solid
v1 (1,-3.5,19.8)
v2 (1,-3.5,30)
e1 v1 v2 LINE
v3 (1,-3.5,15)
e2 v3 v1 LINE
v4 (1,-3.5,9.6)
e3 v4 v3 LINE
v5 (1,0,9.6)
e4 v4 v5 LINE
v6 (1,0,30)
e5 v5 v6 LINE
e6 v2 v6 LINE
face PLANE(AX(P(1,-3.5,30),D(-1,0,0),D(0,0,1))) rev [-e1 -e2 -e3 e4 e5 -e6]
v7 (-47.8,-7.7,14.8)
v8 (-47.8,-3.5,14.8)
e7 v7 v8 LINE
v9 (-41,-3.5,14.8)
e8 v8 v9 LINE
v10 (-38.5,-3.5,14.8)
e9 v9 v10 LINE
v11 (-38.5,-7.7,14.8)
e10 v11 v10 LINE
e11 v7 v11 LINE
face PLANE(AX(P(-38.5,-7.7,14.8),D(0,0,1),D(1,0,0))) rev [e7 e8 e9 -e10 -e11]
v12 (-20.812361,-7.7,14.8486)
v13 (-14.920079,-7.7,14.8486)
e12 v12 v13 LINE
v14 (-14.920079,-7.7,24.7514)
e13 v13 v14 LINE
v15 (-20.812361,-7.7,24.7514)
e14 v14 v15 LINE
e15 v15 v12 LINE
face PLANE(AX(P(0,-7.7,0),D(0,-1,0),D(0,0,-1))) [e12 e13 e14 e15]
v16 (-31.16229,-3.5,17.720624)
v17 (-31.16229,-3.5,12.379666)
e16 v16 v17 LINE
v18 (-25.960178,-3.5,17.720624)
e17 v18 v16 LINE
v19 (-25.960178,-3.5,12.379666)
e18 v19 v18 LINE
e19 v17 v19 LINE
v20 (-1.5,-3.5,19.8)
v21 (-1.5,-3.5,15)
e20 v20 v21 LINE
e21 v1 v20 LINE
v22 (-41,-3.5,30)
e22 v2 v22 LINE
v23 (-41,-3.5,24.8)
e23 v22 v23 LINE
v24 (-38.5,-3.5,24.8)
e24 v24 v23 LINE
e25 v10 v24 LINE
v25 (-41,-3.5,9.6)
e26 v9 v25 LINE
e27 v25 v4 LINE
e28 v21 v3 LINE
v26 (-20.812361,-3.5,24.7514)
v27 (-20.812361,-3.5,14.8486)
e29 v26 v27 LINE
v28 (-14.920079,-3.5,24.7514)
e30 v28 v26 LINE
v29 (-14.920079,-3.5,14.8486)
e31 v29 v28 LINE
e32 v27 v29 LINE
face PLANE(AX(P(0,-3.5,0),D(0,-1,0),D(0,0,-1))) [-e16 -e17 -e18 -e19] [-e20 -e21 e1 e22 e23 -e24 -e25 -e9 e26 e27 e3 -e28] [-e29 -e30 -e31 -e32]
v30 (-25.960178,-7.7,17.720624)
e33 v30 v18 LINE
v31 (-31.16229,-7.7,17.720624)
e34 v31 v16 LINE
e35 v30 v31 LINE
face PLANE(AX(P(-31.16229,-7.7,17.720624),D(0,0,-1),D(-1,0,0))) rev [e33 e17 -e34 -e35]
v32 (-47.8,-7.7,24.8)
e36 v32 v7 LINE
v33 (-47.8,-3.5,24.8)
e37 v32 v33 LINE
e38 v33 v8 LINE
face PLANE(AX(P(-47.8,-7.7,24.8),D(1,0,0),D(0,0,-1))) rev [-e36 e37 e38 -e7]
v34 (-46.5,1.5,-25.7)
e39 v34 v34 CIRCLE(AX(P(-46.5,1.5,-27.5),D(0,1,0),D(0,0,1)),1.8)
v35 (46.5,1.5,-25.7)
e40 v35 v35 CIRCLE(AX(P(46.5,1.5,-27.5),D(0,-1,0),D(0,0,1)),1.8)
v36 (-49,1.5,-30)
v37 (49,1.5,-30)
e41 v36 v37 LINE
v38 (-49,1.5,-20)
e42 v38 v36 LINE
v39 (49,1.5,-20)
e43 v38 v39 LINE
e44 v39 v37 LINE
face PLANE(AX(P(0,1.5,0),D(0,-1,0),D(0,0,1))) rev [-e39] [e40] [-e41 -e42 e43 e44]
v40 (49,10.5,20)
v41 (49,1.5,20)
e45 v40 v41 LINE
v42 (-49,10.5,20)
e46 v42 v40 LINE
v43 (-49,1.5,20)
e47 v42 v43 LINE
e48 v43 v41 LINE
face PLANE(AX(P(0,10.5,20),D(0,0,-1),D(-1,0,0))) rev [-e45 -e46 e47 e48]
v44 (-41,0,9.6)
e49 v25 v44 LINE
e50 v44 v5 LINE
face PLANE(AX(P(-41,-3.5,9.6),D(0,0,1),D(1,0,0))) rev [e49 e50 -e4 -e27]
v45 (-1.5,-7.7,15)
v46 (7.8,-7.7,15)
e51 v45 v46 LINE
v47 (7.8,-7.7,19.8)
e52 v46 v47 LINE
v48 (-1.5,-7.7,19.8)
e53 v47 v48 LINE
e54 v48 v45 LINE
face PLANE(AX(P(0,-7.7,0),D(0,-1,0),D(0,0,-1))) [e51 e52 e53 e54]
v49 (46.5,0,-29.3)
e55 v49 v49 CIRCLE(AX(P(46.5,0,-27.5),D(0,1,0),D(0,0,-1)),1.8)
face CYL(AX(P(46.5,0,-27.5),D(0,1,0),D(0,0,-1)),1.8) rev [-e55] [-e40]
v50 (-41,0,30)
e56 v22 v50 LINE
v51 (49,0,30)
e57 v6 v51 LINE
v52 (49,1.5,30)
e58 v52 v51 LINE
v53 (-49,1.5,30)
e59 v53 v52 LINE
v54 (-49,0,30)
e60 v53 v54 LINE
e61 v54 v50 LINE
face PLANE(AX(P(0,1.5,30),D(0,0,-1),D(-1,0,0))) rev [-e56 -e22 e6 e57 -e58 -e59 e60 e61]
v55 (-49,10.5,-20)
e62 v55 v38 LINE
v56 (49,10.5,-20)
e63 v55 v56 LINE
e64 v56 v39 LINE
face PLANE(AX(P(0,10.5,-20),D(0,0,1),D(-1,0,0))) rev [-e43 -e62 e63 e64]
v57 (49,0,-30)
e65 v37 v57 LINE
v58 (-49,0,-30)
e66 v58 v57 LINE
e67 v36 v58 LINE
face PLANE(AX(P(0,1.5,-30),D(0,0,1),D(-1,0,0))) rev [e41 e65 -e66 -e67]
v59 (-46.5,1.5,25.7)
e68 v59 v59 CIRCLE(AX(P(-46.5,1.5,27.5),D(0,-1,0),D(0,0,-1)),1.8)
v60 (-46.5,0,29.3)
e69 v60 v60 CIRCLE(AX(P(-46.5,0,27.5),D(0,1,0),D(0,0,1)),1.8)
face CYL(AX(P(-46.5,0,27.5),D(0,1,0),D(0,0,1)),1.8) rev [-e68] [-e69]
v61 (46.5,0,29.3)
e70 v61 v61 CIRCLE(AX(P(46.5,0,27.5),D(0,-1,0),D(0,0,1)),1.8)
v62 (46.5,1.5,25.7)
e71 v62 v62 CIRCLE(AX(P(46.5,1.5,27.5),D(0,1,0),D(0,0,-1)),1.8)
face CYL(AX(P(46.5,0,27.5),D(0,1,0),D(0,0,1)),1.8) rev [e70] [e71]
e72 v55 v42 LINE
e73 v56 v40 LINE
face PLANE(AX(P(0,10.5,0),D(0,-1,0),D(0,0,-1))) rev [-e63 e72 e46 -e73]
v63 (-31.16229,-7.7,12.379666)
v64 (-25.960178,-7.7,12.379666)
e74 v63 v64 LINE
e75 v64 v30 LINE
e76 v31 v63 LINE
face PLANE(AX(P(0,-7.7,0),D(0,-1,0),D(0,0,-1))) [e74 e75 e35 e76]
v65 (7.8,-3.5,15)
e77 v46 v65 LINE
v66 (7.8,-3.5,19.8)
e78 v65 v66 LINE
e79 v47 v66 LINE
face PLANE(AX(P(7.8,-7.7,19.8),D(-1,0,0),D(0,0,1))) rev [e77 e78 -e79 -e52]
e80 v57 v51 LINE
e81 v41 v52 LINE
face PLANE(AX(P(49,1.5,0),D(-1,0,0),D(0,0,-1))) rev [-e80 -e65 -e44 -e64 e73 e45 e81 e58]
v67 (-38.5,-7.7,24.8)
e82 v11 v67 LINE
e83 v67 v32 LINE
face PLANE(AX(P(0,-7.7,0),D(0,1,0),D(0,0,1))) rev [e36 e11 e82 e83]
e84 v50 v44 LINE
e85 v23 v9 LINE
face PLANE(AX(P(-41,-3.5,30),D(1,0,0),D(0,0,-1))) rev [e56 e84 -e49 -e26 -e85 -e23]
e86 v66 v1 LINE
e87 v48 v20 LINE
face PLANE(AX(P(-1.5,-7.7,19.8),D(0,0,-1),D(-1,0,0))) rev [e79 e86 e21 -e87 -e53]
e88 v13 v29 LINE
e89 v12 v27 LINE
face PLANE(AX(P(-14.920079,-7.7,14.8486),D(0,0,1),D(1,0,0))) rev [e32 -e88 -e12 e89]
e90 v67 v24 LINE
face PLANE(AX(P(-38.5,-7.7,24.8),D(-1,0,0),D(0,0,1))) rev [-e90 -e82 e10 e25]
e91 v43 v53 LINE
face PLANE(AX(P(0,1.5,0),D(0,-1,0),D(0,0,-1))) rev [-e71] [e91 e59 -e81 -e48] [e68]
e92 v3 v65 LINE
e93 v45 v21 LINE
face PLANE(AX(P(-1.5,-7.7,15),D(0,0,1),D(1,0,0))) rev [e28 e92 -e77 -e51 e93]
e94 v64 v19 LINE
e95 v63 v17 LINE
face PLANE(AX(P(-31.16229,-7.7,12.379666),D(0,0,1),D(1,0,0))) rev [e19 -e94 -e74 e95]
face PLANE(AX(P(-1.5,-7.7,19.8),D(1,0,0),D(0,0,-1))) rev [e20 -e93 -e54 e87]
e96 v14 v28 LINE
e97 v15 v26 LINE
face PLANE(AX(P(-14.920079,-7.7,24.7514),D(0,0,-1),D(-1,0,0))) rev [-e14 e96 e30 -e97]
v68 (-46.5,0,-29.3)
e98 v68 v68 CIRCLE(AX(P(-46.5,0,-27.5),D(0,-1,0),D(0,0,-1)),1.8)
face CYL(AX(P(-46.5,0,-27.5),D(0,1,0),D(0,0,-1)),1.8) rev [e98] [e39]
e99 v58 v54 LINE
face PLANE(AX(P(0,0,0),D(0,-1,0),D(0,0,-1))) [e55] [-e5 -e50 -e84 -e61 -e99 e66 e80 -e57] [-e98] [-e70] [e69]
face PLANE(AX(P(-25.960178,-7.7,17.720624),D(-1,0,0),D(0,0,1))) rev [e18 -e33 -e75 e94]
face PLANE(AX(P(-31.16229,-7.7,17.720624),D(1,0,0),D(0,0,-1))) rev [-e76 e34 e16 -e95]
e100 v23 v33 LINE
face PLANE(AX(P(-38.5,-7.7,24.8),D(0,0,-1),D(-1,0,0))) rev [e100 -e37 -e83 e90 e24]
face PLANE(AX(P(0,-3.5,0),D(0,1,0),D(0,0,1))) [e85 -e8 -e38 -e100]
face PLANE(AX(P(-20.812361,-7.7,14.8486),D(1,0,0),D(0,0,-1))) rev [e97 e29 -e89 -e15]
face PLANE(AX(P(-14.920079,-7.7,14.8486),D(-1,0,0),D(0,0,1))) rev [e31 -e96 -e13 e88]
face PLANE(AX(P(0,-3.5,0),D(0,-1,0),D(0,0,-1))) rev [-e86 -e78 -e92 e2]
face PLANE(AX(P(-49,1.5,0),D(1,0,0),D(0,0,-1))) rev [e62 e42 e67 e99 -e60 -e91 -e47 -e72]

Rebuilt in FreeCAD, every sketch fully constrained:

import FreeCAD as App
import Part
import Sketcher

V = App.Vector
Q = App.Units.Quantity

doc = App.newDocument("Part")
body = doc.addObject("PartDesign::Body", "Body")

sketch1 = body.newObject("Sketcher::SketchObject", "Sketch")
sketch1.AttachmentSupport = (doc.getObject("XZ_Plane"), [""])
sketch1.MapMode = "FlatFace"
sketch1.addGeometry([
    Part.LineSegment(V(-49, 0, 0), V(-49, 30, 0)),
    Part.LineSegment(V(-49, 30, 0), V(0, 30, 0)),
    Part.LineSegment(V(0, 30, 0), V(0, 0, 0)),
    Part.LineSegment(V(0, 0, 0), V(-49, 0, 0)),
], False)
sketch1.addConstraint([
    Sketcher.Constraint("Coincident", 0, 2, 1, 1),
    Sketcher.Constraint("Coincident", 1, 2, 2, 1),
    Sketcher.Constraint("Coincident", 2, 2, 3, 1),
    Sketcher.Constraint("Coincident", 3, 2, 0, 1),
    Sketcher.Constraint("Vertical", 0),
    Sketcher.Constraint("Horizontal", 1),
    Sketcher.Constraint("Vertical", 2),
    Sketcher.Constraint("Horizontal", 3),
    Sketcher.Constraint("Coincident", 2, 2, -1, 1),
    Sketcher.Constraint("DistanceX", 1, 1, 1, 2, Q("49 mm")),
    Sketcher.Constraint("DistanceY", 0, 1, 0, 2, Q("30 mm")),
])
pad1 = body.newObject("PartDesign::Pad", "Pad")
pad1.Profile = sketch1
pad1.Length = 1.5
pad1.Reversed = True

sketch2 = body.newObject("Sketcher::SketchObject", "Sketch001")
sketch2.AttachmentSupport = (doc.getObject("XZ_Plane"), [""])
sketch2.MapMode = "FlatFace"
sketch2.AttachmentOffset = App.Placement(V(0, 0, -1.5), App.Rotation())
sketch2.addGeometry([
    Part.LineSegment(V(-49, 0, 0), V(-49, 20, 0)),
    Part.LineSegment(V(-49, 20, 0), V(0, 20, 0)),
    Part.LineSegment(V(0, 20, 0), V(0, 0, 0)),
    Part.LineSegment(V(0, 0, 0), V(-49, 0, 0)),
], False)
sketch2.addConstraint([
    Sketcher.Constraint("Coincident", 0, 2, 1, 1),
    Sketcher.Constraint("Coincident", 1, 2, 2, 1),
    Sketcher.Constraint("Coincident", 2, 2, 3, 1),
    Sketcher.Constraint("Coincident", 3, 2, 0, 1),
    Sketcher.Constraint("Vertical", 0),
    Sketcher.Constraint("Horizontal", 1),
    Sketcher.Constraint("Vertical", 2),
    Sketcher.Constraint("Horizontal", 3),
    Sketcher.Constraint("Coincident", 2, 2, -1, 1),
    Sketcher.Constraint("DistanceX", 1, 1, 1, 2, Q("49 mm")),
    Sketcher.Constraint("DistanceY", 0, 1, 0, 2, Q("20 mm")),
])
pad2 = body.newObject("PartDesign::Pad", "Pad001")
pad2.Profile = sketch2
pad2.Length = 9
pad2.Reversed = True

sketch3 = body.newObject("Sketcher::SketchObject", "Sketch002")
sketch3.AttachmentSupport = (doc.getObject("XZ_Plane"), [""])
sketch3.MapMode = "FlatFace"
sketch3.AttachmentOffset = App.Placement(V(0, 0, -1.5), App.Rotation())
sketch3.addGeometry(Part.Circle(V(-46.5, 27.5, 0), V(0, 0, 1), 1.8), False)
sketch3.addConstraint([
    Sketcher.Constraint("Diameter", 0, Q("3.6 mm")),
    Sketcher.Constraint("DistanceX", 0, 3, -1, 1, Q("46.5 mm")),
    Sketcher.Constraint("DistanceY", -1, 1, 0, 3, Q("27.5 mm")),
])
pocket1 = body.newObject("PartDesign::Pocket", "Pocket")
pocket1.Profile = sketch3
pocket1.Type = "ThroughAll"
pocket1.Midplane = True
body2 = doc.addObject("PartDesign::Body", "Body001")
doc.recompute()

body2.BaseFeature = body
doc.recompute()

mirroring = doc.addObject("Part::Mirroring", "Mirroring")
mirroring.Source = body
mirroring.Base = V(0, 1.5, 0)
mirroring.Normal = V(-1, 0, 0)
body3 = doc.addObject("PartDesign::Body", "Body002")
body3.BaseFeature = mirroring
boolean = body2.newObject("PartDesign::Boolean", "Boolean")
boolean.Type = "Fuse"
boolean.addObjects([body3])
doc.recompute()
body4 = doc.addObject("PartDesign::Body", "Body003")
doc.recompute()

body4.BaseFeature = body2
doc.recompute()

mirroring2 = doc.addObject("Part::Mirroring", "Mirroring001")
mirroring2.Source = body2
mirroring2.Base = V(0, 1.5, 0)
mirroring2.Normal = V(0, 0, 1)
body5 = doc.addObject("PartDesign::Body", "Body004")
body5.BaseFeature = mirroring2
boolean2 = body4.newObject("PartDesign::Boolean", "Boolean001")
boolean2.Type = "Fuse"
boolean2.addObjects([body5])
doc.recompute()

sketch4 = body4.newObject("Sketcher::SketchObject", "Sketch003")
sketch4.AttachmentSupport = (doc.getObject("XZ_Plane003"), [""])
sketch4.MapMode = "FlatFace"
sketch4.addGeometry([
    Part.LineSegment(V(-41, 30, 0), V(-41, 10, 0)),
    Part.LineSegment(V(-41, 10, 0), V(1, 10, 0)),
    Part.LineSegment(V(1, 10, 0), V(1, 30, 0)),
    Part.LineSegment(V(1, 30, 0), V(-41, 30, 0)),
], False)
sketch4.addConstraint([
    Sketcher.Constraint("Coincident", 0, 2, 1, 1),
    Sketcher.Constraint("Coincident", 1, 2, 2, 1),
    Sketcher.Constraint("Coincident", 2, 2, 3, 1),
    Sketcher.Constraint("Coincident", 3, 2, 0, 1),
    Sketcher.Constraint("Vertical", 0),
    Sketcher.Constraint("Horizontal", 1),
    Sketcher.Constraint("Vertical", 2),
    Sketcher.Constraint("Horizontal", 3),
    Sketcher.Constraint("DistanceX", 1, 1, 1, 2, Q("42 mm")),
    Sketcher.Constraint("DistanceY", 0, 2, 0, 1, Q("20.4 mm")),
    Sketcher.Constraint("DistanceX", 0, 2, -1, 1, Q("41 mm")),
    Sketcher.Constraint("DistanceY", -1, 1, 2, 2, Q("30 mm")),
])
pad3 = body4.newObject("PartDesign::Pad", "Pad002")
pad3.Profile = sketch4
pad3.Length = 3.5

sketch5 = body4.newObject("Sketcher::SketchObject", "Sketch004")
sketch5.AttachmentSupport = (doc.getObject("XZ_Plane003"), [""])
sketch5.MapMode = "FlatFace"
sketch5.AttachmentOffset = App.Placement(V(0, 0, 3.5), App.Rotation())
sketch5.addGeometry([
    Part.LineSegment(V(-47.8, 24.8, 0), V(-47.8, 14.8, 0)),
    Part.LineSegment(V(-47.8, 14.8, 0), V(-38.5, 14.8, 0)),
    Part.LineSegment(V(-38.5, 14.8, 0), V(-38.5, 24.8, 0)),
    Part.LineSegment(V(-38.5, 24.8, 0), V(-47.8, 24.8, 0)),
    Part.LineSegment(V(-31.2, 17.7, 0), V(-31.2, 12.4, 0)),
    Part.LineSegment(V(-31.2, 12.4, 0), V(-26, 12.4, 0)),
    Part.LineSegment(V(-26, 12.4, 0), V(-26, 17.7, 0)),
    Part.LineSegment(V(-26, 17.7, 0), V(-31.2, 17.7, 0)),
    Part.LineSegment(V(-20.8, 24.8, 0), V(-20.8, 14.8, 0)),
    Part.LineSegment(V(-20.8, 14.8, 0), V(-14.9, 14.8, 0)),
    Part.LineSegment(V(-14.9, 14.8, 0), V(-14.9, 24.8, 0)),
    Part.LineSegment(V(-14.9, 24.8, 0), V(-20.8, 24.8, 0)),
    Part.LineSegment(V(-1.5, 19.8, 0), V(-1.5, 15, 0)),
    Part.LineSegment(V(-1.5, 15, 0), V(7.8, 15, 0)),
    Part.LineSegment(V(7.8, 15, 0), V(7.8, 19.8, 0)),
    Part.LineSegment(V(7.8, 19.8, 0), V(-1.5, 19.8, 0)),
], False)
sketch5.addConstraint([
    Sketcher.Constraint("Coincident", 0, 2, 1, 1),
    Sketcher.Constraint("Coincident", 1, 2, 2, 1),
    Sketcher.Constraint("Coincident", 2, 2, 3, 1),
    Sketcher.Constraint("Coincident", 3, 2, 0, 1),
    Sketcher.Constraint("Coincident", 4, 2, 5, 1),
    Sketcher.Constraint("Coincident", 5, 2, 6, 1),
    Sketcher.Constraint("Coincident", 6, 2, 7, 1),
    Sketcher.Constraint("Coincident", 7, 2, 4, 1),
    Sketcher.Constraint("Coincident", 8, 2, 9, 1),
    Sketcher.Constraint("Coincident", 9, 2, 10, 1),
    Sketcher.Constraint("Coincident", 10, 2, 11, 1),
    Sketcher.Constraint("Coincident", 11, 2, 8, 1),
    Sketcher.Constraint("Coincident", 12, 2, 13, 1),
    Sketcher.Constraint("Coincident", 13, 2, 14, 1),
    Sketcher.Constraint("Coincident", 14, 2, 15, 1),
    Sketcher.Constraint("Coincident", 15, 2, 12, 1),
    Sketcher.Constraint("Vertical", 0),
    Sketcher.Constraint("Horizontal", 1),
    Sketcher.Constraint("Vertical", 2),
    Sketcher.Constraint("Horizontal", 3),
    Sketcher.Constraint("Vertical", 4),
    Sketcher.Constraint("Horizontal", 5),
    Sketcher.Constraint("Vertical", 6),
    Sketcher.Constraint("Horizontal", 7),
    Sketcher.Constraint("Vertical", 8),
    Sketcher.Constraint("Horizontal", 9),
    Sketcher.Constraint("Vertical", 10),
    Sketcher.Constraint("Horizontal", 11),
    Sketcher.Constraint("Vertical", 12),
    Sketcher.Constraint("Horizontal", 13),
    Sketcher.Constraint("Vertical", 14),
    Sketcher.Constraint("Horizontal", 15),
    Sketcher.Constraint("Equal", 3, 13),
    Sketcher.Constraint("DistanceY", 0, 2, 0, 1, Q("10 mm")),
    Sketcher.Constraint("DistanceX", 1, 1, 1, 2, Q("9.3 mm")),
    Sketcher.Constraint("DistanceY", 12, 2, 12, 1, Q("4.8 mm")),
    Sketcher.Constraint("DistanceY", -1, 1, 12, 2, Q("15 mm")),
    Sketcher.Constraint("DistanceX", 0, 2, -1, 1, Q("47.8 mm")),
    Sketcher.Constraint("DistanceY", -1, 1, 0, 2, Q("14.8 mm")),
    Sketcher.Constraint("DistanceX", 12, 2, -1, 1, Q("1.5 mm")),
    Sketcher.Constraint("DistanceY", 8, 2, 8, 1, Q("9.9028 mm")),
    Sketcher.Constraint("DistanceX", 5, 1, 5, 2, Q("5.202112 mm")),
    Sketcher.Constraint("DistanceX", 9, 1, 9, 2, Q("5.892281 mm")),
    Sketcher.Constraint("DistanceY", 4, 2, 4, 1, Q("5.340958 mm")),
    Sketcher.Constraint("DistanceY", -1, 1, 8, 2, Q("14.8486 mm")),
    Sketcher.Constraint("DistanceX", 5, 2, 9, 2, Q("11.040099 mm")),
    Sketcher.Constraint("DistanceX", 4, 2, -1, 1, Q("31.16229 mm")),
    Sketcher.Constraint("DistanceY", -1, 1, 4, 2, Q("12.379666 mm")),
])
pad4 = body4.newObject("PartDesign::Pad", "Pad003")
pad4.Profile = sketch5
pad4.Length = 4.2
mirroring.Visibility = False
mirroring2.Visibility = False

doc.recompute()
